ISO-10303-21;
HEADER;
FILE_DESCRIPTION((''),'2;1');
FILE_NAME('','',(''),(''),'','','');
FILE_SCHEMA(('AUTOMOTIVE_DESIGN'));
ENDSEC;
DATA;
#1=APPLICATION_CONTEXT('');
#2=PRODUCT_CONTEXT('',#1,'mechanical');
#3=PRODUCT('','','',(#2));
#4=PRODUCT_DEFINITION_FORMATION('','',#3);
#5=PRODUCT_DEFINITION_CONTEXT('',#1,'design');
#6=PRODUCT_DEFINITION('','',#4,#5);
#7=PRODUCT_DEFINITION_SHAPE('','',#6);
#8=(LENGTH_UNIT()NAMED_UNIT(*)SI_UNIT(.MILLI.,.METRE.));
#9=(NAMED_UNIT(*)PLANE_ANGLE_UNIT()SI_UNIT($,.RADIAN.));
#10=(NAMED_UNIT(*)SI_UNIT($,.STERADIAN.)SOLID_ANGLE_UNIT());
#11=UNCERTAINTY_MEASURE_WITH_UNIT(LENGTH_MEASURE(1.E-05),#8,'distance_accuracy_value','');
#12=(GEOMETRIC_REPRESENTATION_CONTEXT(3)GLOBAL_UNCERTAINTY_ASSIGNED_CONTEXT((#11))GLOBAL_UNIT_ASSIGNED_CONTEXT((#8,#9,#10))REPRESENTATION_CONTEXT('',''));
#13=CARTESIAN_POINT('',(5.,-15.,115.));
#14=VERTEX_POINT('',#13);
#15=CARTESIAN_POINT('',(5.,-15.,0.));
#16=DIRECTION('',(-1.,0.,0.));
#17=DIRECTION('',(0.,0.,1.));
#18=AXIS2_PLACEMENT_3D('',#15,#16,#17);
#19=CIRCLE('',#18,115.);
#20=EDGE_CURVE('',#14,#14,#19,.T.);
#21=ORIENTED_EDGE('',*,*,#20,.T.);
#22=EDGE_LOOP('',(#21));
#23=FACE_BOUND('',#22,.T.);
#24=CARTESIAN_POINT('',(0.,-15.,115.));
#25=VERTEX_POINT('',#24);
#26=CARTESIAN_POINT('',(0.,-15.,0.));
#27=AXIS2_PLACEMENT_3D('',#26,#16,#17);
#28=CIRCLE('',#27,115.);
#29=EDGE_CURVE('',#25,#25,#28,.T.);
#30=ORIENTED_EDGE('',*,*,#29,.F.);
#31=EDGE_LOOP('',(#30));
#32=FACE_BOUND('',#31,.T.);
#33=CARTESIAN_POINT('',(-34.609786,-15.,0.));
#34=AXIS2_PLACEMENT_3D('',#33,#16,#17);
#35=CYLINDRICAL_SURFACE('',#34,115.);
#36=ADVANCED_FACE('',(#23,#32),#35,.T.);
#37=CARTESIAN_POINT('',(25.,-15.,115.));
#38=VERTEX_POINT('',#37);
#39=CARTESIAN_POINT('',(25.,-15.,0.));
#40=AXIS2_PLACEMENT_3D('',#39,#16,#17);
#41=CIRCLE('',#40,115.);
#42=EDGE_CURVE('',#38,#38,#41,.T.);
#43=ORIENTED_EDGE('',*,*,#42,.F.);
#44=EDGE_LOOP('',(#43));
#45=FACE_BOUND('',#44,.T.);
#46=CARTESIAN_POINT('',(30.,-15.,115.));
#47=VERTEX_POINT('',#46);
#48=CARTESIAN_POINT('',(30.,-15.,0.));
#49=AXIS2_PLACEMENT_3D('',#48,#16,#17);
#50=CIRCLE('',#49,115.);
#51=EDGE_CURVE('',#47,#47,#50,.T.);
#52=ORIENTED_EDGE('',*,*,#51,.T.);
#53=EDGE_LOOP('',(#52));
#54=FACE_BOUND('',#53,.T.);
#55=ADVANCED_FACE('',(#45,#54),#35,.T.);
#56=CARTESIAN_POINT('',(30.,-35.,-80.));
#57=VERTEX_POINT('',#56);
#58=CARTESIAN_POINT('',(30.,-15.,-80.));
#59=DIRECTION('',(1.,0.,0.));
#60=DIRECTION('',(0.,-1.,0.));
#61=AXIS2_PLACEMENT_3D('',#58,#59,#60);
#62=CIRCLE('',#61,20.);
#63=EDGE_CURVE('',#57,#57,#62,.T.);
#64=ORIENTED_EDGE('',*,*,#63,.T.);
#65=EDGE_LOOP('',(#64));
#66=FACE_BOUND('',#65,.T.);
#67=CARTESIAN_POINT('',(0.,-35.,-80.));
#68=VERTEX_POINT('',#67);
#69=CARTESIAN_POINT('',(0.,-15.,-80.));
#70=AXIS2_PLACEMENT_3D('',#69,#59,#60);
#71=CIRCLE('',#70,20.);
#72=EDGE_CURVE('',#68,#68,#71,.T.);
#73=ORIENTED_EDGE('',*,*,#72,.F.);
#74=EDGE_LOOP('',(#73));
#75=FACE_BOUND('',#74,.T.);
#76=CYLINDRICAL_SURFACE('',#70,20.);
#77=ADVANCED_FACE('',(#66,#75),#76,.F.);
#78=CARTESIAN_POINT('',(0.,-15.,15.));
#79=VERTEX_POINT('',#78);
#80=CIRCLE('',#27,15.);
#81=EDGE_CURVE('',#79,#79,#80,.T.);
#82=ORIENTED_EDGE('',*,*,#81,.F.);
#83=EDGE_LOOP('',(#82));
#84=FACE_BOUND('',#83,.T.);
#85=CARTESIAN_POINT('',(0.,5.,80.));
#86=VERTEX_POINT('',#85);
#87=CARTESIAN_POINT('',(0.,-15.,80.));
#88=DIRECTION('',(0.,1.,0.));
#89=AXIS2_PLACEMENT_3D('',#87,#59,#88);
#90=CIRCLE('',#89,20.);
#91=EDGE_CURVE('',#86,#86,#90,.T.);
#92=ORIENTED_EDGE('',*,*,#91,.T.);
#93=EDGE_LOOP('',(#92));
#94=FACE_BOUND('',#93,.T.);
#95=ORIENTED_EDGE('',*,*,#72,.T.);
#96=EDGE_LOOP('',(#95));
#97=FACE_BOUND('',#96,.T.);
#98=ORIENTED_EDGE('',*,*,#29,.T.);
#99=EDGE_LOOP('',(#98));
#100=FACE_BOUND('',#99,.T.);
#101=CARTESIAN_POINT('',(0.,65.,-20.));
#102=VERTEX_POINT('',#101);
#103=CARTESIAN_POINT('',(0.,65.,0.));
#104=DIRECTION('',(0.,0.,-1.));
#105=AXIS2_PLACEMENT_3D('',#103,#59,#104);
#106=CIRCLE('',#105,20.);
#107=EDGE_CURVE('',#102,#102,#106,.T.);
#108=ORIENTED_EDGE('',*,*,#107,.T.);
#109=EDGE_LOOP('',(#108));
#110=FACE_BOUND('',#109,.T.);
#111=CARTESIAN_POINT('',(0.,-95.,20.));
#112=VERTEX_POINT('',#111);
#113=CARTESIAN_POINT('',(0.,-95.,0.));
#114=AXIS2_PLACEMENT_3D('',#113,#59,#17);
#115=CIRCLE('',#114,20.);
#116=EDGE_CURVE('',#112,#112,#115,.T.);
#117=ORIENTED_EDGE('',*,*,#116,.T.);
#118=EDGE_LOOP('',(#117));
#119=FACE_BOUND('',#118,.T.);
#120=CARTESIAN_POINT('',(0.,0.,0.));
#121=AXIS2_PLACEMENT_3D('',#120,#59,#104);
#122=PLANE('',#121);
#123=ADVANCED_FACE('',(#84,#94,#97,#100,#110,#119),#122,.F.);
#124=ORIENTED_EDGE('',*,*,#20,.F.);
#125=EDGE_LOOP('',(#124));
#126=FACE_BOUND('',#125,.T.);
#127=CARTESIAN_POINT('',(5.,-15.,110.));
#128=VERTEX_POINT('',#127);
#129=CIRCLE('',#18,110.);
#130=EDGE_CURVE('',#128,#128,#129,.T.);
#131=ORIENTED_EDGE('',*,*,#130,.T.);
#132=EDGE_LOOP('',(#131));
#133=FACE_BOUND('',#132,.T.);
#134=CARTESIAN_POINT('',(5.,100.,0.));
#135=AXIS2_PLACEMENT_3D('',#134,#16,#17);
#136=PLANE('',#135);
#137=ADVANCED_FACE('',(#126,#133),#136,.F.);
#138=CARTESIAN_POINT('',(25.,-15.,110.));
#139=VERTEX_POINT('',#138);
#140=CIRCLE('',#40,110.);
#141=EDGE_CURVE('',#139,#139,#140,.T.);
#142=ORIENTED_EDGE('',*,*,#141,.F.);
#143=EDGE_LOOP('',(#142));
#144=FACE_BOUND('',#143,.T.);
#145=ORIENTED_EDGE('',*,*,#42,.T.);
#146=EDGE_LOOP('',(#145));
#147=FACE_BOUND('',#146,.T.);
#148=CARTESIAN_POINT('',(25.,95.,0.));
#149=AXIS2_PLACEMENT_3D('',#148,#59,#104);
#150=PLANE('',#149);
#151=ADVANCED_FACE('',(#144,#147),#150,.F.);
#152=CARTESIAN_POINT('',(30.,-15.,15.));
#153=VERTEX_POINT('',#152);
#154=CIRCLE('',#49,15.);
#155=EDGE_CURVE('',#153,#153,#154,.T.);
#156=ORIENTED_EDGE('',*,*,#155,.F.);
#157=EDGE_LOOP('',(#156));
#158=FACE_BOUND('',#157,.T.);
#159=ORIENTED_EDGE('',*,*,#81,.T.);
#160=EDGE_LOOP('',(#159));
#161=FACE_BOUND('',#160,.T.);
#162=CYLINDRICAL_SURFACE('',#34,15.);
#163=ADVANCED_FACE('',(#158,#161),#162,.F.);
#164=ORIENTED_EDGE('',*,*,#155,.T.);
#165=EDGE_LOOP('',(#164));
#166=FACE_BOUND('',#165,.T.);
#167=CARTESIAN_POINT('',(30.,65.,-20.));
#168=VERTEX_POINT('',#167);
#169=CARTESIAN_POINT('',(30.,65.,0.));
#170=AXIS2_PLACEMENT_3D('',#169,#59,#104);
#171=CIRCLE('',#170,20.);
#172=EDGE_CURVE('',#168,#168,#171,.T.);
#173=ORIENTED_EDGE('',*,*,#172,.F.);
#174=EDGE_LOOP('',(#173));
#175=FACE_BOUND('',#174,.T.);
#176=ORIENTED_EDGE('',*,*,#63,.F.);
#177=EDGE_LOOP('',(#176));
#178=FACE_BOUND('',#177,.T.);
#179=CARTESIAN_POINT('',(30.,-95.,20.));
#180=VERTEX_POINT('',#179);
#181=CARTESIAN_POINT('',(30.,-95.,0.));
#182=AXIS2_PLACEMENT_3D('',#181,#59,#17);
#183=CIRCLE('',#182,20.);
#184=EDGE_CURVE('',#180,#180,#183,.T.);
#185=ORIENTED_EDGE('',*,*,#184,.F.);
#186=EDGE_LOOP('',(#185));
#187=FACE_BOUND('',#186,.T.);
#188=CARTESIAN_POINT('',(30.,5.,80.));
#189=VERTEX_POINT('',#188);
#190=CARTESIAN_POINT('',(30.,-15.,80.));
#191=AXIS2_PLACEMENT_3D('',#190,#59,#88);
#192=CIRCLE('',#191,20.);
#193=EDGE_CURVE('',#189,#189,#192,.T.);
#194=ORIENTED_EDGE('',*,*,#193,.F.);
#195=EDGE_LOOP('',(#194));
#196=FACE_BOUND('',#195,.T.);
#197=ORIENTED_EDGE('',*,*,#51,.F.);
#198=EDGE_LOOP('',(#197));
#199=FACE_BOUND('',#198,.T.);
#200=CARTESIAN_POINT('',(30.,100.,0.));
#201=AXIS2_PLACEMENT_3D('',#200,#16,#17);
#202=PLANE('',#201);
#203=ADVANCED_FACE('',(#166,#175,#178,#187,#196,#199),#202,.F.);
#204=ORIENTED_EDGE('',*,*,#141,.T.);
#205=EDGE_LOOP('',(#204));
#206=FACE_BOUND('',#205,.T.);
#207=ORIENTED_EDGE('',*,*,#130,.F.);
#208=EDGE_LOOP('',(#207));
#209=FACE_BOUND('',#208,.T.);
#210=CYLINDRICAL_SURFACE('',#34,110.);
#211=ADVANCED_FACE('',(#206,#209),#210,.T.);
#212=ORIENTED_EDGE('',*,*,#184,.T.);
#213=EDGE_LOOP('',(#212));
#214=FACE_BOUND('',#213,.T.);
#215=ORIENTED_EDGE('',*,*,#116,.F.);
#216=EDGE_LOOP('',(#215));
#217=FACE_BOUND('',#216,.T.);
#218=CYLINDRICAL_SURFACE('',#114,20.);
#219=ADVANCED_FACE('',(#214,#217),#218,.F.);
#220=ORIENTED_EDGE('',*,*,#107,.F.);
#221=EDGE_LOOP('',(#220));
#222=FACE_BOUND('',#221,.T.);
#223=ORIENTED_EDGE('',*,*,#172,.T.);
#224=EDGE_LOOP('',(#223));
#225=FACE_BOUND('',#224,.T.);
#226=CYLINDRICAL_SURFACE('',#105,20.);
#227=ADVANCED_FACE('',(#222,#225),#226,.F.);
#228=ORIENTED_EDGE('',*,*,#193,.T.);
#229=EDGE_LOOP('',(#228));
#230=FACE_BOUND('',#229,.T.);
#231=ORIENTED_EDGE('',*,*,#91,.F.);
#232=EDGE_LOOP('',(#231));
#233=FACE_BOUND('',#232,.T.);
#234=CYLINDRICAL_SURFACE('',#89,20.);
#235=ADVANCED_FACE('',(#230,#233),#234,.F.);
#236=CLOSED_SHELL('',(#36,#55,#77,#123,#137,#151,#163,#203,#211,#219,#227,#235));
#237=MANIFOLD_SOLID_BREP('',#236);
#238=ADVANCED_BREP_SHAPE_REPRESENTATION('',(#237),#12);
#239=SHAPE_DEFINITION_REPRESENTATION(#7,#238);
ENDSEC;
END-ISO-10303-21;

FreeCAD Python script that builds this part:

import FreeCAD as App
import Part
import Sketcher

V = App.Vector
Q = App.Units.Quantity


def add_polygon(sketch, points):
    """Adds a closed chain of lines whose ends are joined by coincident constraints."""
    first, n = sketch.GeometryCount, len(points)
    for a, b in zip(points, points[1:] + points[:1]):
        sketch.addGeometry(Part.LineSegment(App.Vector(*a, 0), App.Vector(*b, 0)), False)
    for i in range(n):
        sketch.addConstraint(Sketcher.Constraint("Coincident", first + i, 2, first + (i + 1) % n, 1))

doc = App.newDocument("Part")
body = doc.addObject("PartDesign::Body", "Body")

# Sketch on XY plane
sketch1 = body.newObject("Sketcher::SketchObject", "Sketch")
sketch1.AttachmentSupport = (doc.getObject("XY_Plane"), [""])
sketch1.MapMode = "FlatFace"
add_polygon(sketch1, [(0, 100), (0, 0), (30, 0), (30, 100), (25, 100), (25, 95), (5, 95), (5, 100)])  # lines 0-7
sketch1.addGeometry(Part.LineSegment(V(0, -15, 0), V(30, -15, 0)), True)  # axis
sketch1.addConstraint([
    Sketcher.Constraint("Vertical", 0),
    Sketcher.Constraint("Horizontal", 1),
    Sketcher.Constraint("Vertical", 2),
    Sketcher.Constraint("Horizontal", 3),
    Sketcher.Constraint("Vertical", 4),
    Sketcher.Constraint("Horizontal", 5),
    Sketcher.Constraint("Vertical", 6),
    Sketcher.Constraint("Horizontal", 7),
    Sketcher.Constraint("Horizontal", 8),
    Sketcher.Constraint("Coincident", 0, 2, -1, 1),
    Sketcher.Constraint("PointOnObject", 8, 1, -2),
    Sketcher.Constraint("Horizontal", 3, 2, 6, 2),
    Sketcher.Constraint("Vertical", 2, 2, 8, 2),
    Sketcher.Constraint("Equal", 3, 7),
    Sketcher.Constraint("Equal", 7, 4),
    Sketcher.Constraint("DistanceX", 1, 1, 1, 2, Q("30 mm")),
    Sketcher.Constraint("DistanceX", 3, 2, 3, 1, Q("5 mm")),
    Sketcher.Constraint("DistanceY", 0, 2, 0, 1, Q("100 mm")),
    Sketcher.Constraint("DistanceY", 8, 1, -1, 1, Q("15 mm")),
])
revolution = body.newObject("PartDesign::Revolution", "Revolution")
revolution.Profile = sketch1
revolution.ReferenceAxis = (sketch1, ["Axis0"])
revolution.Angle = 360

# Sketch on YZ plane
sketch2 = body.newObject("Sketcher::SketchObject", "Sketch001")
sketch2.AttachmentSupport = (doc.getObject("YZ_Plane"), [""])
sketch2.MapMode = "FlatFace"
sketch2.AttachmentOffset = App.Placement(V(0, 0, 30), App.Rotation())
sketch2.addGeometry(Part.Circle(V(65, 0, 0), V(0, 0, 1), 20), False)
sketch2.addConstraint([
    Sketcher.Constraint("PointOnObject", 0, 3, -1),
    Sketcher.Constraint("Diameter", 0, Q("40 mm")),
    Sketcher.Constraint("DistanceX", -1, 1, 0, 3, Q("65 mm")),
])
pocket1 = body.newObject("PartDesign::Pocket", "Pocket")
pocket1.Profile = sketch2
pocket1.Type = "ThroughAll"
doc.recompute()

datumline = body.newObject("PartDesign::Line", "DatumLine")
datumline.Placement = App.Placement(V(0, -15, 0), App.Rotation(V(0, 0, 1), V(1, 0, 0)))
polarpattern = body.newObject("PartDesign::PolarPattern", "PolarPattern")
polarpattern.Originals = [pocket1]
polarpattern.Axis = (datumline, [""])
polarpattern.Angle = 360
polarpattern.Occurrences = 4
body.Tip = polarpattern

doc.recompute()
